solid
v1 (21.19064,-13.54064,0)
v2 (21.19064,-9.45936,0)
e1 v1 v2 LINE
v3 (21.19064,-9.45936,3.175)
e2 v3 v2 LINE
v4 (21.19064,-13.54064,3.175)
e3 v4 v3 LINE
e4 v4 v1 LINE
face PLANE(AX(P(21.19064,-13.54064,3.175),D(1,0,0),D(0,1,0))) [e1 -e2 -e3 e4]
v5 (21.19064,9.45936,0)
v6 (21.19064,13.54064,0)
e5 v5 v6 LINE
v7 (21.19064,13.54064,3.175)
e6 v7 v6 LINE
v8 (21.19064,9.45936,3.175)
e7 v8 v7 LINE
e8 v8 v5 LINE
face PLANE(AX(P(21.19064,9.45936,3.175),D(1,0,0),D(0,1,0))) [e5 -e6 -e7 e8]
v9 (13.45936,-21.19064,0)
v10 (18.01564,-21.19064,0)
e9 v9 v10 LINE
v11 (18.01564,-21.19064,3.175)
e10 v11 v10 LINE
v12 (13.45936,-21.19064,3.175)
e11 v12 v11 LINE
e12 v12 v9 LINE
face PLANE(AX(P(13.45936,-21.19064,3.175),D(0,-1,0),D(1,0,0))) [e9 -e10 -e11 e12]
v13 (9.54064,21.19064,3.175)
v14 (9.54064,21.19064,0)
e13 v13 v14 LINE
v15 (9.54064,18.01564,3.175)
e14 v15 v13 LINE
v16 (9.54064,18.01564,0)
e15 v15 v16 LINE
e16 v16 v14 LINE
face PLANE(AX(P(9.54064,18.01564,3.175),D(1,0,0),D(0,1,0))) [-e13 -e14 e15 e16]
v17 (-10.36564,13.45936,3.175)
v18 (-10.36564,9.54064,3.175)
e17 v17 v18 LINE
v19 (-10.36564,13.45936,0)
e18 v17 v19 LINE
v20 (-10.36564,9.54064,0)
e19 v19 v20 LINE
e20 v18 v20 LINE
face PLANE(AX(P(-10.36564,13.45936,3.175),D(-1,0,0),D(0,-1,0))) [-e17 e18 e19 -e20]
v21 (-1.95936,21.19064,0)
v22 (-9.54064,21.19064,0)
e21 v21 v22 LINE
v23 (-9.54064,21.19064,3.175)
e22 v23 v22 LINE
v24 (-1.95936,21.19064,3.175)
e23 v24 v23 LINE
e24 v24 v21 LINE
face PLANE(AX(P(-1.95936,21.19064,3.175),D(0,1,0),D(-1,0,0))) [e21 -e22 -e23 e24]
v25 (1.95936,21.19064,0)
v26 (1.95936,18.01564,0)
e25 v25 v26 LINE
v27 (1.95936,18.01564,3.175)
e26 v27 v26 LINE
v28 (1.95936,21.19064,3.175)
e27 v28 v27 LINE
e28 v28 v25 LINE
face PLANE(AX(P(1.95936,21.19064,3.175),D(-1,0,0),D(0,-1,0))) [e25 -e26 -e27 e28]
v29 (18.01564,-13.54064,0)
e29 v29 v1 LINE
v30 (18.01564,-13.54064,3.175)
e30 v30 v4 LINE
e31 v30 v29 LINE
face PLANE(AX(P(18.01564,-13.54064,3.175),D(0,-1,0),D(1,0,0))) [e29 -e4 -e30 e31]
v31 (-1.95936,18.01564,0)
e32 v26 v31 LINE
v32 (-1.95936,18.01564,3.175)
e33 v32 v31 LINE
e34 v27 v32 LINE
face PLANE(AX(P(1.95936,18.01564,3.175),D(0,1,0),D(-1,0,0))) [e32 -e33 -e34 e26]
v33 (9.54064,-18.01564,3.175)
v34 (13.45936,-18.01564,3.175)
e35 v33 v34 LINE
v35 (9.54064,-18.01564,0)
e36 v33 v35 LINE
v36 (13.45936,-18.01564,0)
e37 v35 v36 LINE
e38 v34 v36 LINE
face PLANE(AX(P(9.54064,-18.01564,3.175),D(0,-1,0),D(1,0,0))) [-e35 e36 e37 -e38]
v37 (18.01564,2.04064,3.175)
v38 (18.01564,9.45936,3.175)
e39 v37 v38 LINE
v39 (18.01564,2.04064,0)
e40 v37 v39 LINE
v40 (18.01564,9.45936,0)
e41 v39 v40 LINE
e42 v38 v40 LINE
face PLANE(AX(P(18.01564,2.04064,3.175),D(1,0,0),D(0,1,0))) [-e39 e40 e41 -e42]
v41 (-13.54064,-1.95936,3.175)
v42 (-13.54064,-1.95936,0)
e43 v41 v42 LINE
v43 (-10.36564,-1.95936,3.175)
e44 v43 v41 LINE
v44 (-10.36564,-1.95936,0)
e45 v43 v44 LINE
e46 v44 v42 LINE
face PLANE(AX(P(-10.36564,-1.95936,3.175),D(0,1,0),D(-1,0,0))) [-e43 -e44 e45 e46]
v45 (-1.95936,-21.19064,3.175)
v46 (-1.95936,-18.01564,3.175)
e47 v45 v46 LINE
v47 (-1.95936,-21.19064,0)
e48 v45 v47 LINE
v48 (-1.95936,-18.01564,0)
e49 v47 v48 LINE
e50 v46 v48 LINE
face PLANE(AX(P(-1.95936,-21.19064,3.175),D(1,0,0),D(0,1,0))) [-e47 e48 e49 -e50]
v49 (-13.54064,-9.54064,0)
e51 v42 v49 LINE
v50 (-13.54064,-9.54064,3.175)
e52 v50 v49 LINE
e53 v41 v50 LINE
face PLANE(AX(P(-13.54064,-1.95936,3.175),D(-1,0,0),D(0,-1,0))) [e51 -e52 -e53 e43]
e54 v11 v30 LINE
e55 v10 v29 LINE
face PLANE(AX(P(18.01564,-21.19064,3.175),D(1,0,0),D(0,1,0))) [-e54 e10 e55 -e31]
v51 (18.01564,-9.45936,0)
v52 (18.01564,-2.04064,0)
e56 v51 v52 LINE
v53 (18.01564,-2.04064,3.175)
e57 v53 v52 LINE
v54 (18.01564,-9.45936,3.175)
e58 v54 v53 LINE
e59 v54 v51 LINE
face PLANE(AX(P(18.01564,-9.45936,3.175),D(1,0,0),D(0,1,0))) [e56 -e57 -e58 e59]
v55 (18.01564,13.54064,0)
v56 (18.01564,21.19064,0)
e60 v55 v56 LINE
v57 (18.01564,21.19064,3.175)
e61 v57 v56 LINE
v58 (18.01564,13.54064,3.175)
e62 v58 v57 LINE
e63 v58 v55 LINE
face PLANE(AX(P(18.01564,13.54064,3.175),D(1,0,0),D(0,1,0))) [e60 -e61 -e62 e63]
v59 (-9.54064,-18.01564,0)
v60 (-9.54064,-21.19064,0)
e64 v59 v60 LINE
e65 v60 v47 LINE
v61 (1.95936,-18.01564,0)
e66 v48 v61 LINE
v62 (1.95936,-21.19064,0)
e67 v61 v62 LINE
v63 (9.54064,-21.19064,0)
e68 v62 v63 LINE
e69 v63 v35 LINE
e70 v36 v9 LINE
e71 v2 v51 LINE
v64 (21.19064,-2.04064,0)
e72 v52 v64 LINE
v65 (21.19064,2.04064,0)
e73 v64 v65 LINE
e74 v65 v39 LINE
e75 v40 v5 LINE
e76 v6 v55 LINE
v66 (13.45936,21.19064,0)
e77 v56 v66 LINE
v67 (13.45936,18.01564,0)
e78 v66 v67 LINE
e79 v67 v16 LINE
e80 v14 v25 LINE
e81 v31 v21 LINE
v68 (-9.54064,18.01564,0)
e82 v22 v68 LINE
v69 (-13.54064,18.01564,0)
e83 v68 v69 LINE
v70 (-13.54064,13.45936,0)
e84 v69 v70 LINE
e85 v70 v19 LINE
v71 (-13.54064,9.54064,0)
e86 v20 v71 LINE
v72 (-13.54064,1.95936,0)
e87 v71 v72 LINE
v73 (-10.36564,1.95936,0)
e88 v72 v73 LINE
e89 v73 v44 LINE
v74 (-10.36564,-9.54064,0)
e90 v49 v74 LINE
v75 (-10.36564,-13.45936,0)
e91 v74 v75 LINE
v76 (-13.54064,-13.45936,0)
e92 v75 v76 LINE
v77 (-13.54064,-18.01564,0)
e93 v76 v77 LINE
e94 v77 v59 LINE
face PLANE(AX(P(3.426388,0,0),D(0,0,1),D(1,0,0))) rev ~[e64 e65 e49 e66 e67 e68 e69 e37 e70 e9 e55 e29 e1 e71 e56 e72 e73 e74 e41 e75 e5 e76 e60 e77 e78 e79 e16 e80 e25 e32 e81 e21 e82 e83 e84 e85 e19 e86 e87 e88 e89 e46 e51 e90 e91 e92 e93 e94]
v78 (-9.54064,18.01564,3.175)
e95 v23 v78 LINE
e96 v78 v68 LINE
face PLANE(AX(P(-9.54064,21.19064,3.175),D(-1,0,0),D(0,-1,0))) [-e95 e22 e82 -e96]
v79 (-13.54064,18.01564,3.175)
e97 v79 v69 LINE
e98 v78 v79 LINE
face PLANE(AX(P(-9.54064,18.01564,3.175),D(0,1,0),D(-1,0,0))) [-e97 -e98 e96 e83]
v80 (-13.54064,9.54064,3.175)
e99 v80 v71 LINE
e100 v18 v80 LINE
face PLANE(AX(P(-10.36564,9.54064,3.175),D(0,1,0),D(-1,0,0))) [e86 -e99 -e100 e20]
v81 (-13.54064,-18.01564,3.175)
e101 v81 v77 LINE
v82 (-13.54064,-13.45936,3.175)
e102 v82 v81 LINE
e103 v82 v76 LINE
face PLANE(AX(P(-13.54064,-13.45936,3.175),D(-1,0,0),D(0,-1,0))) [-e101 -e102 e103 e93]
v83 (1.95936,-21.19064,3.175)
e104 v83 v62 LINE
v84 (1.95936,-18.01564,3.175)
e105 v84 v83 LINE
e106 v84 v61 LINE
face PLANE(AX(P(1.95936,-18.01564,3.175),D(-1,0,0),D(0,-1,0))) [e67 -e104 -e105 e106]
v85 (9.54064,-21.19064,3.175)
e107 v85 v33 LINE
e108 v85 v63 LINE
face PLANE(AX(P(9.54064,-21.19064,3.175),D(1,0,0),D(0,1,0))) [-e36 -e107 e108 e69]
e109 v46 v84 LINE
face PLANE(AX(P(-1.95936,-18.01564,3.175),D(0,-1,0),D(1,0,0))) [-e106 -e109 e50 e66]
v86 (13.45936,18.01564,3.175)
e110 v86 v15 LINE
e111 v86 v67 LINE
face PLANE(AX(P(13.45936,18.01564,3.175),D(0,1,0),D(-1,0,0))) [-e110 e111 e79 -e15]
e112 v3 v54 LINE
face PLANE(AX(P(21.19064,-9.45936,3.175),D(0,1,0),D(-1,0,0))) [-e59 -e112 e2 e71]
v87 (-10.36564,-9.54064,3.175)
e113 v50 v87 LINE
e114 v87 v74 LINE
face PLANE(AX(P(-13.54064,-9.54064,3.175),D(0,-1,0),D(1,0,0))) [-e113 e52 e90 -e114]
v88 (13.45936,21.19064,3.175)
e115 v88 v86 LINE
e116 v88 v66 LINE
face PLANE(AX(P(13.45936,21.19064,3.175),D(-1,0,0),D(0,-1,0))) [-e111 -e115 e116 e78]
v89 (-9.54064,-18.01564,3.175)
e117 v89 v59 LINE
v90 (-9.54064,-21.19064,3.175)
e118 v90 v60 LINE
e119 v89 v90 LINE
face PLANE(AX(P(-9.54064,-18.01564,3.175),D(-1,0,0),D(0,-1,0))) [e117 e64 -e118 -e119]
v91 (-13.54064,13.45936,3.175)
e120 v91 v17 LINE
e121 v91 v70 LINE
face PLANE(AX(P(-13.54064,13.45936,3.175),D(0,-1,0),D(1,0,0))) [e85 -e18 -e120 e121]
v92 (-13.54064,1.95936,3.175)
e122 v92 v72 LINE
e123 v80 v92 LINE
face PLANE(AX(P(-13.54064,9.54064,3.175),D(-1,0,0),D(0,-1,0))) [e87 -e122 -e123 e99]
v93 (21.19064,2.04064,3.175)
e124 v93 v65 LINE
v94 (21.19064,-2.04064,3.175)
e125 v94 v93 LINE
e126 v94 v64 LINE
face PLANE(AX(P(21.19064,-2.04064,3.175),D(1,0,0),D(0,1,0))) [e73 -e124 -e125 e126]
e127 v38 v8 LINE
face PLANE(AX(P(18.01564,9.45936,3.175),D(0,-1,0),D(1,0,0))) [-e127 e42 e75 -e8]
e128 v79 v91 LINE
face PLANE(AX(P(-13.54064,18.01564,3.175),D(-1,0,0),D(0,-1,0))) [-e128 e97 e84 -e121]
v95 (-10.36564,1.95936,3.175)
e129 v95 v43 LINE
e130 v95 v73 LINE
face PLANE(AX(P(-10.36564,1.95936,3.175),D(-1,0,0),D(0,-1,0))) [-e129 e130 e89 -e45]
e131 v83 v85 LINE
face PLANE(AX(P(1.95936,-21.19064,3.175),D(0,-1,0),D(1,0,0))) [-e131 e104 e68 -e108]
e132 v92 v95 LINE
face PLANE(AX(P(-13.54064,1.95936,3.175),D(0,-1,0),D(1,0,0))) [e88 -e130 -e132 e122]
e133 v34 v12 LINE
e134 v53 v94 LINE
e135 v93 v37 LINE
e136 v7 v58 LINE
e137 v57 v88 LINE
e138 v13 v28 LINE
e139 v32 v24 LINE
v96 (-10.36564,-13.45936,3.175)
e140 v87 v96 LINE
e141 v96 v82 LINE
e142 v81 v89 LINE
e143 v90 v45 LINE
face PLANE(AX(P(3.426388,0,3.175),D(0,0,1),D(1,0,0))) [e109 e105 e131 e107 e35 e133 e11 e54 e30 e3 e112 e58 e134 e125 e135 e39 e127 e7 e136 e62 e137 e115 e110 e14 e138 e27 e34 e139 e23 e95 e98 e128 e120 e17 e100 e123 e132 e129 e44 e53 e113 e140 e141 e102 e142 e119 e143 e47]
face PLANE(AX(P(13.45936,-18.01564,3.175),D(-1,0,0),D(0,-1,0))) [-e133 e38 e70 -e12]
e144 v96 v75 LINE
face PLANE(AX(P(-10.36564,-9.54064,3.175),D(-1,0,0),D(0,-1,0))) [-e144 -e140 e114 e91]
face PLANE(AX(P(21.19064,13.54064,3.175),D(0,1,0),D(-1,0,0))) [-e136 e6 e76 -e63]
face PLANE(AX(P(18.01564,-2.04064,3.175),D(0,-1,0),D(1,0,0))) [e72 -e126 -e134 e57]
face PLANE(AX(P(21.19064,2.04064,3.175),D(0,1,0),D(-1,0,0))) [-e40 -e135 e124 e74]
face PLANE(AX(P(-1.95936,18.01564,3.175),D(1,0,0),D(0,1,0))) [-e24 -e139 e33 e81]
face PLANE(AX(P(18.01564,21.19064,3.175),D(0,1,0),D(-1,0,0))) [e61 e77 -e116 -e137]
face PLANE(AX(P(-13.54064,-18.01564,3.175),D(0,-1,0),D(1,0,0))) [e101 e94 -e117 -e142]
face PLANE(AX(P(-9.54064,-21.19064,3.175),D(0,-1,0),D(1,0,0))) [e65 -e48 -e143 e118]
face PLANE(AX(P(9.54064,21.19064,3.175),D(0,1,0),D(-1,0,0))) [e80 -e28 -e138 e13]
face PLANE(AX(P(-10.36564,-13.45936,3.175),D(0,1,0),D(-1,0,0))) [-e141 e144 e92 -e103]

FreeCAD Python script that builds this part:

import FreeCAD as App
import Part
import Sketcher
Q = App.Units.Quantity

doc = App.newDocument("Part")
params = doc.addObject("Spreadsheet::Sheet", "Params")
for row, (alias, value) in enumerate([
    ("sketch1_width", "4 mm"),
    ("sketch1_width2", "7.5 mm"),
    ("sketch1_width3", "7.65 mm"),
    ("pad1_length", "3.175 mm"),
    ("sketch2_height", "4 mm"),
    ("sketch2_height2", "42.3 mm"),
    ("sketch2_height3", "7.5 mm"),
    ("pocket1_length", "10 mm"),
    ("sketch3_width", "4 mm"),
    ("sketch3_height", "7.65 mm"),
    ("pad2_length", "3.175 mm"),
], start=1):
    params.set(f"A{row}", alias)
    params.set(f"B{row}", "=" + value)
    params.setAlias(f"B{row}", alias)

body = doc.addObject("PartDesign::Body", "Body")

sketch1 = body.newObject("Sketcher::SketchObject", "Sketch")
sketch1.AttachmentSupport = (doc.getObject("XY_Plane"), [""])
sketch1.MapMode = "FlatFace"
sketch1.addGeometry([
    Part.LineSegment(App.Vector(-2, 18, 0), App.Vector(-2, 21.1, 0)),
    Part.LineSegment(App.Vector(-2, 21.1, 0), App.Vector(-9.5, 21.1, 0)),
    Part.LineSegment(App.Vector(-9.5, 21.1, 0), App.Vector(-9.5, 18, 0)),
    Part.LineSegment(App.Vector(-9.5, 18, 0), App.Vector(-13.5, 18, 0)),
    Part.LineSegment(App.Vector(-13.5, 18, 0), App.Vector(-13.5, 21.1, 0)),
    Part.LineSegment(App.Vector(-13.5, 21.1, 0), App.Vector(-21.1, 21.1, 0)),
    Part.LineSegment(App.Vector(-21.1, 21.1, 0), App.Vector(-21.1, 13.5, 0)),
    Part.LineSegment(App.Vector(-21.1, 13.5, 0), App.Vector(-18, 13.5, 0)),
    Part.LineSegment(App.Vector(-18, 13.5, 0), App.Vector(-18, 9.5, 0)),
    Part.LineSegment(App.Vector(-18, 9.5, 0), App.Vector(-21.1, 9.5, 0)),
    Part.LineSegment(App.Vector(-21.1, 9.5, 0), App.Vector(-21.1, 2, 0)),
    Part.LineSegment(App.Vector(-21.1, 2, 0), App.Vector(-18, 2, 0)),
    Part.LineSegment(App.Vector(-18, 2, 0), App.Vector(-18, -2, 0)),
    Part.LineSegment(App.Vector(-18, -2, 0), App.Vector(-21.1, -2, 0)),
    Part.LineSegment(App.Vector(-21.1, -2, 0), App.Vector(-21.1, -9.5, 0)),
    Part.LineSegment(App.Vector(-21.1, -9.5, 0), App.Vector(-18, -9.5, 0)),
    Part.LineSegment(App.Vector(-18, -9.5, 0), App.Vector(-18, -13.5, 0)),
    Part.LineSegment(App.Vector(-18, -13.5, 0), App.Vector(-21.1, -13.5, 0)),
    Part.LineSegment(App.Vector(-21.1, -13.5, 0), App.Vector(-21.1, -21.1, 0)),
    Part.LineSegment(App.Vector(-21.1, -21.1, 0), App.Vector(-13.5, -21.1, 0)),
    Part.LineSegment(App.Vector(-13.5, -21.1, 0), App.Vector(-13.5, -18, 0)),
    Part.LineSegment(App.Vector(-13.5, -18, 0), App.Vector(-9.5, -18, 0)),
    Part.LineSegment(App.Vector(-9.5, -18, 0), App.Vector(-9.5, -21.1, 0)),
    Part.LineSegment(App.Vector(-9.5, -21.1, 0), App.Vector(-2, -21.1, 0)),
    Part.LineSegment(App.Vector(-2, -21.1, 0), App.Vector(-2, -18, 0)),
    Part.LineSegment(App.Vector(-2, -18, 0), App.Vector(2, -18, 0)),
    Part.LineSegment(App.Vector(2, -18, 0), App.Vector(2, -21.1, 0)),
    Part.LineSegment(App.Vector(2, -21.1, 0), App.Vector(9.5, -21.1, 0)),
    Part.LineSegment(App.Vector(9.5, -21.1, 0), App.Vector(9.5, -18, 0)),
    Part.LineSegment(App.Vector(9.5, -18, 0), App.Vector(13.5, -18, 0)),
    Part.LineSegment(App.Vector(13.5, -18, 0), App.Vector(13.5, -21.1, 0)),
    Part.LineSegment(App.Vector(13.5, -21.1, 0), App.Vector(18, -21.1, 0)),
    Part.LineSegment(App.Vector(18, -21.1, 0), App.Vector(18, -13.5, 0)),
    Part.LineSegment(App.Vector(18, -13.5, 0), App.Vector(21.1, -13.5, 0)),
    Part.LineSegment(App.Vector(21.1, -13.5, 0), App.Vector(21.1, -9.5, 0)),
    Part.LineSegment(App.Vector(21.1, -9.5, 0), App.Vector(18, -9.5, 0)),
    Part.LineSegment(App.Vector(18, -9.5, 0), App.Vector(18, -2, 0)),
    Part.LineSegment(App.Vector(18, -2, 0), App.Vector(21.1, -2, 0)),
    Part.LineSegment(App.Vector(21.1, -2, 0), App.Vector(21.1, 2, 0)),
    Part.LineSegment(App.Vector(21.1, 2, 0), App.Vector(18, 2, 0)),
    Part.LineSegment(App.Vector(18, 2, 0), App.Vector(18, 9.5, 0)),
    Part.LineSegment(App.Vector(18, 9.5, 0), App.Vector(21.1, 9.5, 0)),
    Part.LineSegment(App.Vector(21.1, 9.5, 0), App.Vector(21.1, 13.5, 0)),
    Part.LineSegment(App.Vector(21.1, 13.5, 0), App.Vector(18, 13.5, 0)),
    Part.LineSegment(App.Vector(18, 13.5, 0), App.Vector(18, 21.1, 0)),
    Part.LineSegment(App.Vector(18, 21.1, 0), App.Vector(13.5, 21.1, 0)),
    Part.LineSegment(App.Vector(13.5, 21.1, 0), App.Vector(13.5, 18, 0)),
    Part.LineSegment(App.Vector(13.5, 18, 0), App.Vector(9.5, 18, 0)),
    Part.LineSegment(App.Vector(9.5, 18, 0), App.Vector(9.5, 21.1, 0)),
    Part.LineSegment(App.Vector(9.5, 21.1, 0), App.Vector(2, 21.1, 0)),
    Part.LineSegment(App.Vector(2, 21.1, 0), App.Vector(2, 18, 0)),
    Part.LineSegment(App.Vector(2, 18, 0), App.Vector(-2, 18, 0)),
], False)
sketch1.addConstraint([
    Sketcher.Constraint("Coincident", 0, 2, 1, 1),
    Sketcher.Constraint("Coincident", 1, 2, 2, 1),
    Sketcher.Constraint("Coincident", 2, 2, 3, 1),
    Sketcher.Constraint("Coincident", 3, 2, 4, 1),
    Sketcher.Constraint("Coincident", 4, 2, 5, 1),
    Sketcher.Constraint("Coincident", 5, 2, 6, 1),
    Sketcher.Constraint("Coincident", 6, 2, 7, 1),
    Sketcher.Constraint("Coincident", 7, 2, 8, 1),
    Sketcher.Constraint("Coincident", 8, 2, 9, 1),
    Sketcher.Constraint("Coincident", 9, 2, 10, 1),
    Sketcher.Constraint("Coincident", 10, 2, 11, 1),
    Sketcher.Constraint("Coincident", 11, 2, 12, 1),
    Sketcher.Constraint("Coincident", 12, 2, 13, 1),
    Sketcher.Constraint("Coincident", 13, 2, 14, 1),
    Sketcher.Constraint("Coincident", 14, 2, 15, 1),
    Sketcher.Constraint("Coincident", 15, 2, 16, 1),
    Sketcher.Constraint("Coincident", 16, 2, 17, 1),
    Sketcher.Constraint("Coincident", 17, 2, 18, 1),
    Sketcher.Constraint("Coincident", 18, 2, 19, 1),
    Sketcher.Constraint("Coincident", 19, 2, 20, 1),
    Sketcher.Constraint("Coincident", 20, 2, 21, 1),
    Sketcher.Constraint("Coincident", 21, 2, 22, 1),
    Sketcher.Constraint("Coincident", 22, 2, 23, 1),
    Sketcher.Constraint("Coincident", 23, 2, 24, 1),
    Sketcher.Constraint("Coincident", 24, 2, 25, 1),
    Sketcher.Constraint("Coincident", 25, 2, 26, 1),
    Sketcher.Constraint("Coincident", 26, 2, 27, 1),
    Sketcher.Constraint("Coincident", 27, 2, 28, 1),
    Sketcher.Constraint("Coincident", 28, 2, 29, 1),
    Sketcher.Constraint("Coincident", 29, 2, 30, 1),
    Sketcher.Constraint("Coincident", 30, 2, 31, 1),
    Sketcher.Constraint("Coincident", 31, 2, 32, 1),
    Sketcher.Constraint("Coincident", 32, 2, 33, 1),
    Sketcher.Constraint("Coincident", 33, 2, 34, 1),
    Sketcher.Constraint("Coincident", 34, 2, 35, 1),
    Sketcher.Constraint("Coincident", 35, 2, 36, 1),
    Sketcher.Constraint("Coincident", 36, 2, 37, 1),
    Sketcher.Constraint("Coincident", 37, 2, 38, 1),
    Sketcher.Constraint("Coincident", 38, 2, 39, 1),
    Sketcher.Constraint("Coincident", 39, 2, 40, 1),
    Sketcher.Constraint("Coincident", 40, 2, 41, 1),
    Sketcher.Constraint("Coincident", 41, 2, 42, 1),
    Sketcher.Constraint("Coincident", 42, 2, 43, 1),
    Sketcher.Constraint("Coincident", 43, 2, 44, 1),
    Sketcher.Constraint("Coincident", 44, 2, 45, 1),
    Sketcher.Constraint("Coincident", 45, 2, 46, 1),
    Sketcher.Constraint("Coincident", 46, 2, 47, 1),
    Sketcher.Constraint("Coincident", 47, 2, 48, 1),
    Sketcher.Constraint("Coincident", 48, 2, 49, 1),
    Sketcher.Constraint("Coincident", 49, 2, 50, 1),
    Sketcher.Constraint("Coincident", 50, 2, 51, 1),
    Sketcher.Constraint("Coincident", 51, 2, 0, 1),
    Sketcher.Constraint("Vertical", 0),
    Sketcher.Constraint("Horizontal", 1),
    Sketcher.Constraint("Vertical", 2),
    Sketcher.Constraint("Horizontal", 3),
    Sketcher.Constraint("Vertical", 4),
    Sketcher.Constraint("Horizontal", 5),
    Sketcher.Constraint("Vertical", 6),
    Sketcher.Constraint("Horizontal", 7),
    Sketcher.Constraint("Vertical", 8),
    Sketcher.Constraint("Horizontal", 9),
    Sketcher.Constraint("Vertical", 10),
    Sketcher.Constraint("Horizontal", 11),
    Sketcher.Constraint("Vertical", 12),
    Sketcher.Constraint("Horizontal", 13),
    Sketcher.Constraint("Vertical", 14),
    Sketcher.Constraint("Horizontal", 15),
    Sketcher.Constraint("Vertical", 16),
    Sketcher.Constraint("Horizontal", 17),
    Sketcher.Constraint("Vertical", 18),
    Sketcher.Constraint("Horizontal", 19),
    Sketcher.Constraint("Vertical", 20),
    Sketcher.Constraint("Horizontal", 21),
    Sketcher.Constraint("Vertical", 22),
    Sketcher.Constraint("Horizontal", 23),
    Sketcher.Constraint("Vertical", 24),
    Sketcher.Constraint("Horizontal", 25),
    Sketcher.Constraint("Vertical", 26),
    Sketcher.Constraint("Horizontal", 27),
    Sketcher.Constraint("Vertical", 28),
    Sketcher.Constraint("Horizontal", 29),
    Sketcher.Constraint("Vertical", 30),
    Sketcher.Constraint("Horizontal", 31),
    Sketcher.Constraint("Vertical", 32),
    Sketcher.Constraint("Horizontal", 33),
    Sketcher.Constraint("Vertical", 34),
    Sketcher.Constraint("Horizontal", 35),
    Sketcher.Constraint("Vertical", 36),
    Sketcher.Constraint("Horizontal", 37),
    Sketcher.Constraint("Vertical", 38),
    Sketcher.Constraint("Horizontal", 39),
    Sketcher.Constraint("Vertical", 40),
    Sketcher.Constraint("Horizontal", 41),
    Sketcher.Constraint("Vertical", 42),
    Sketcher.Constraint("Horizontal", 43),
    Sketcher.Constraint("Vertical", 44),
    Sketcher.Constraint("Horizontal", 45),
    Sketcher.Constraint("Vertical", 46),
    Sketcher.Constraint("Horizontal", 47),
    Sketcher.Constraint("Vertical", 48),
    Sketcher.Constraint("Horizontal", 49),
    Sketcher.Constraint("Vertical", 50),
    Sketcher.Constraint("Horizontal", 51),
    Sketcher.Constraint("Symmetric", 0, 2, 26, 2, -1, 1),
    Sketcher.Constraint("Symmetric", 2, 2, 28, 2, -1, 1),
    Sketcher.Constraint("Symmetric", 4, 2, 30, 2, -1, 1),
    Sketcher.Constraint("Symmetric", 7, 2, 32, 2, -1, 1),
    Sketcher.Constraint("Symmetric", 9, 2, 34, 2, -1, 1),
    Sketcher.Constraint("Symmetric", 11, 2, 36, 2, -1, 1),
    Sketcher.Constraint("Symmetric", 13, 2, 38, 2, -1, 1),
    Sketcher.Constraint("Symmetric", 15, 2, 40, 2, -1, 1),
    Sketcher.Constraint("Symmetric", 17, 2, 42, 2, -1, 1),
    Sketcher.Constraint("Symmetric", 19, 2, 45, 2, -1, 1),
    Sketcher.Constraint("Symmetric", 21, 2, 47, 2, -1, 1),
    Sketcher.Constraint("Symmetric", 23, 2, 49, 2, -1, 1),
    Sketcher.Constraint("Symmetric", 23, 2, 26, 2, -2),
    Sketcher.Constraint("Symmetric", 21, 2, 28, 2, -2),
    Sketcher.Constraint("Symmetric", 19, 2, 30, 2, -2),
    Sketcher.Constraint("Symmetric", 16, 2, 32, 2, -2),
    Sketcher.Constraint("Symmetric", 14, 2, 34, 2, -2),
    Sketcher.Constraint("Symmetric", 11, 2, 39, 2, -2),
    Sketcher.Constraint("Horizontal", 1, 2, 4, 2),
    Sketcher.Constraint("Horizontal", 21, 2, 24, 2),
    Sketcher.Constraint("Horizontal", 47, 2, 50, 2),
    Sketcher.Constraint("Vertical", 6, 2, 9, 2),
    Sketcher.Constraint("Vertical", 14, 2, 17, 2),
    Sketcher.Constraint("Vertical", 40, 2, 43, 2),
    Sketcher.Constraint("Equal", 21, 25),
    Sketcher.Constraint("Equal", 43, 0),
    Sketcher.Constraint("Equal", 19, 6),
    Sketcher.Constraint("Equal", 51, 8),
    Sketcher.Constraint("Equal", 49, 10),
    Sketcher.Constraint("Equal", 8, 12),
    Sketcher.Constraint("DistanceX", 3, 2, 3, 1, Q("4 mm")),
    Sketcher.Constraint("DistanceX", 1, 2, 1, 1, Q("7.5 mm")),
    Sketcher.Constraint("DistanceX", 5, 2, 5, 1, Q("7.65 mm")),
    Sketcher.Constraint("DistanceX", 7, 1, 7, 2, Q("3.175 mm")),
])
sketch1.setExpression("Constraints[134]", "Params.sketch1_width")
sketch1.setExpression("Constraints[135]", "Params.sketch1_width2")
sketch1.setExpression("Constraints[136]", "Params.sketch1_width3")
pad1 = body.newObject("PartDesign::Pad", "Pad")
pad1.Profile = sketch1
pad1.setExpression("Length", "Params.pad1_length")

sketch2 = body.newObject("Sketcher::SketchObject", "Sketch001")
sketch2.AttachmentSupport = (doc.getObject("XY_Plane"), [""])
sketch2.MapMode = "FlatFace"
sketch2.AttachmentOffset = App.Placement(App.Vector(0, 0, 3.175), App.Rotation())
sketch2.addGeometry([
    Part.LineSegment(App.Vector(-13.5, 21.1, 0), App.Vector(-21.1, 21.1, 0)),
    Part.LineSegment(App.Vector(-21.1, 21.1, 0), App.Vector(-21.1, -21.1, 0)),
    Part.LineSegment(App.Vector(-21.1, -21.1, 0), App.Vector(-13.5, -21.1, 0)),
    Part.LineSegment(App.Vector(-13.5, -21.1, 0), App.Vector(-13.5, -13.5, 0)),
    Part.LineSegment(App.Vector(-13.5, -13.5, 0), App.Vector(-10.3, -13.5, 0)),
    Part.LineSegment(App.Vector(-10.3, -13.5, 0), App.Vector(-10.3, -9.5, 0)),
    Part.LineSegment(App.Vector(-10.3, -9.5, 0), App.Vector(-13.5, -9.5, 0)),
    Part.LineSegment(App.Vector(-13.5, -9.5, 0), App.Vector(-13.5, -2, 0)),
    Part.LineSegment(App.Vector(-13.5, -2, 0), App.Vector(-10.3, -2, 0)),
    Part.LineSegment(App.Vector(-10.3, -2, 0), App.Vector(-10.3, 2, 0)),
    Part.LineSegment(App.Vector(-10.3, 2, 0), App.Vector(-13.5, 2, 0)),
    Part.LineSegment(App.Vector(-13.5, 2, 0), App.Vector(-13.5, 9.5, 0)),
    Part.LineSegment(App.Vector(-13.5, 9.5, 0), App.Vector(-10.3, 9.5, 0)),
    Part.LineSegment(App.Vector(-10.3, 9.5, 0), App.Vector(-10.3, 13.5, 0)),
    Part.LineSegment(App.Vector(-10.3, 13.5, 0), App.Vector(-13.5, 13.5, 0)),
    Part.LineSegment(App.Vector(-13.5, 13.5, 0), App.Vector(-13.5, 21.1, 0)),
], False)
sketch2.addConstraint([
    Sketcher.Constraint("Coincident", 0, 2, 1, 1),
    Sketcher.Constraint("Coincident", 1, 2, 2, 1),
    Sketcher.Constraint("Coincident", 2, 2, 3, 1),
    Sketcher.Constraint("Coincident", 3, 2, 4, 1),
    Sketcher.Constraint("Coincident", 4, 2, 5, 1),
    Sketcher.Constraint("Coincident", 5, 2, 6, 1),
    Sketcher.Constraint("Coincident", 6, 2, 7, 1),
    Sketcher.Constraint("Coincident", 7, 2, 8, 1),
    Sketcher.Constraint("Coincident", 8, 2, 9, 1),
    Sketcher.Constraint("Coincident", 9, 2, 10, 1),
    Sketcher.Constraint("Coincident", 10, 2, 11, 1),
    Sketcher.Constraint("Coincident", 11, 2, 12, 1),
    Sketcher.Constraint("Coincident", 12, 2, 13, 1),
    Sketcher.Constraint("Coincident", 13, 2, 14, 1),
    Sketcher.Constraint("Coincident", 14, 2, 15, 1),
    Sketcher.Constraint("Coincident", 15, 2, 0, 1),
    Sketcher.Constraint("Horizontal", 0),
    Sketcher.Constraint("Vertical", 1),
    Sketcher.Constraint("Horizontal", 2),
    Sketcher.Constraint("Vertical", 3),
    Sketcher.Constraint("Horizontal", 4),
    Sketcher.Constraint("Vertical", 5),
    Sketcher.Constraint("Horizontal", 6),
    Sketcher.Constraint("Vertical", 7),
    Sketcher.Constraint("Horizontal", 8),
    Sketcher.Constraint("Vertical", 9),
    Sketcher.Constraint("Horizontal", 10),
    Sketcher.Constraint("Vertical", 11),
    Sketcher.Constraint("Horizontal", 12),
    Sketcher.Constraint("Vertical", 13),
    Sketcher.Constraint("Horizontal", 14),
    Sketcher.Constraint("Vertical", 15),
    Sketcher.Constraint("Symmetric", 7, 2, 10, 2, -1),
    Sketcher.Constraint("Symmetric", 5, 2, 12, 2, -1),
    Sketcher.Constraint("Symmetric", 3, 2, 14, 2, -1),
    Sketcher.Constraint("Vertical", 3, 2, 6, 2),
    Sketcher.Constraint("Vertical", 5, 2, 8, 2),
    Sketcher.Constraint("Equal", 2, 3),
    Sketcher.Constraint("Equal", 5, 9),
    Sketcher.Constraint("Equal", 3, 15),
    Sketcher.Constraint("DistanceY", 5, 1, 5, 2, Q("4 mm")),
    Sketcher.Constraint("DistanceY", 1, 2, 1, 1, Q("42.3 mm")),
    Sketcher.Constraint("DistanceY", 7, 1, 7, 2, Q("7.5 mm")),
    Sketcher.Constraint("DistanceX", 2, 2, -1, 1, Q("13.5 mm")),
    Sketcher.Constraint("DistanceX", 4, 1, 4, 2, Q("3.175 mm")),
])
sketch2.setExpression("Constraints[40]", "Params.sketch2_height")
sketch2.setExpression("Constraints[41]", "Params.sketch2_height2")
sketch2.setExpression("Constraints[42]", "Params.sketch2_height3")
pocket1 = body.newObject("PartDesign::Pocket", "Pocket")
pocket1.Profile = sketch2
pocket1.setExpression("Length", "Params.pocket1_length")

sketch3 = body.newObject("Sketcher::SketchObject", "Sketch002")
sketch3.AttachmentSupport = (doc.getObject("XY_Plane"), [""])
sketch3.MapMode = "FlatFace"
sketch3.AttachmentOffset = App.Placement(App.Vector(0, 0, 3.175), App.Rotation())
sketch3.addGeometry([
    Part.LineSegment(App.Vector(-13.5, 18, 0), App.Vector(-13.5, 13.5, 0)),
    Part.LineSegment(App.Vector(-13.5, 13.5, 0), App.Vector(-10.4, 13.5, 0)),
    Part.LineSegment(App.Vector(-10.4, 13.5, 0), App.Vector(-10.4, 9.5, 0)),
    Part.LineSegment(App.Vector(-10.4, 9.5, 0), App.Vector(-13.5, 9.5, 0)),
    Part.LineSegment(App.Vector(-13.5, 9.5, 0), App.Vector(-13.5, 2, 0)),
    Part.LineSegment(App.Vector(-13.5, 2, 0), App.Vector(-10.4, 2, 0)),
    Part.LineSegment(App.Vector(-10.4, 2, 0), App.Vector(-10.4, -2, 0)),
    Part.LineSegment(App.Vector(-10.4, -2, 0), App.Vector(-13.5, -2, 0)),
    Part.LineSegment(App.Vector(-13.5, -2, 0), App.Vector(-13.5, -9.5, 0)),
    Part.LineSegment(App.Vector(-13.5, -9.5, 0), App.Vector(-10.4, -9.5, 0)),
    Part.LineSegment(App.Vector(-10.4, -9.5, 0), App.Vector(-10.4, -13.5, 0)),
    Part.LineSegment(App.Vector(-10.4, -13.5, 0), App.Vector(-13.5, -13.5, 0)),
    Part.LineSegment(App.Vector(-13.5, -13.5, 0), App.Vector(-13.5, -18, 0)),
    Part.LineSegment(App.Vector(-13.5, -18, 0), App.Vector(-9.5, -18, 0)),
    Part.LineSegment(App.Vector(-9.5, -18, 0), App.Vector(-9.5, -21.2, 0)),
    Part.LineSegment(App.Vector(-9.5, -21.2, 0), App.Vector(-2, -21.2, 0)),
    Part.LineSegment(App.Vector(-2, -21.2, 0), App.Vector(-2, -18, 0)),
    Part.LineSegment(App.Vector(-2, -18, 0), App.Vector(2, -18, 0)),
    Part.LineSegment(App.Vector(2, -18, 0), App.Vector(2, -21.2, 0)),
    Part.LineSegment(App.Vector(2, -21.2, 0), App.Vector(9.5, -21.2, 0)),
    Part.LineSegment(App.Vector(9.5, -21.2, 0), App.Vector(9.5, -18, 0)),
    Part.LineSegment(App.Vector(9.5, -18, 0), App.Vector(13.5, -18, 0)),
    Part.LineSegment(App.Vector(13.5, -18, 0), App.Vector(13.5, -21.2, 0)),
    Part.LineSegment(App.Vector(13.5, -21.2, 0), App.Vector(18, -21.2, 0)),
    Part.LineSegment(App.Vector(18, -21.2, 0), App.Vector(18, -13.5, 0)),
    Part.LineSegment(App.Vector(18, -13.5, 0), App.Vector(21.2, -13.5, 0)),
    Part.LineSegment(App.Vector(21.2, -13.5, 0), App.Vector(21.2, -9.5, 0)),
    Part.LineSegment(App.Vector(21.2, -9.5, 0), App.Vector(18, -9.5, 0)),
    Part.LineSegment(App.Vector(18, -9.5, 0), App.Vector(18, -2, 0)),
    Part.LineSegment(App.Vector(18, -2, 0), App.Vector(21.2, -2, 0)),
    Part.LineSegment(App.Vector(21.2, -2, 0), App.Vector(21.2, 2, 0)),
    Part.LineSegment(App.Vector(21.2, 2, 0), App.Vector(18, 2, 0)),
    Part.LineSegment(App.Vector(18, 2, 0), App.Vector(18, 9.5, 0)),
    Part.LineSegment(App.Vector(18, 9.5, 0), App.Vector(21.2, 9.5, 0)),
    Part.LineSegment(App.Vector(21.2, 9.5, 0), App.Vector(21.2, 13.5, 0)),
    Part.LineSegment(App.Vector(21.2, 13.5, 0), App.Vector(18, 13.5, 0)),
    Part.LineSegment(App.Vector(18, 13.5, 0), App.Vector(18, 21.2, 0)),
    Part.LineSegment(App.Vector(18, 21.2, 0), App.Vector(13.5, 21.2, 0)),
    Part.LineSegment(App.Vector(13.5, 21.2, 0), App.Vector(13.5, 18, 0)),
    Part.LineSegment(App.Vector(13.5, 18, 0), App.Vector(9.5, 18, 0)),
    Part.LineSegment(App.Vector(9.5, 18, 0), App.Vector(9.5, 21.2, 0)),
    Part.LineSegment(App.Vector(9.5, 21.2, 0), App.Vector(2, 21.2, 0)),
    Part.LineSegment(App.Vector(2, 21.2, 0), App.Vector(2, 18, 0)),
    Part.LineSegment(App.Vector(2, 18, 0), App.Vector(-2, 18, 0)),
    Part.LineSegment(App.Vector(-2, 18, 0), App.Vector(-2, 21.2, 0)),
    Part.LineSegment(App.Vector(-2, 21.2, 0), App.Vector(-9.5, 21.2, 0)),
    Part.LineSegment(App.Vector(-9.5, 21.2, 0), App.Vector(-9.5, 18, 0)),
    Part.LineSegment(App.Vector(-9.5, 18, 0), App.Vector(-13.5, 18, 0)),
], False)
sketch3.addConstraint([
    Sketcher.Constraint("Coincident", 0, 2, 1, 1),
    Sketcher.Constraint("Coincident", 1, 2, 2, 1),
    Sketcher.Constraint("Coincident", 2, 2, 3, 1),
    Sketcher.Constraint("Coincident", 3, 2, 4, 1),
    Sketcher.Constraint("Coincident", 4, 2, 5, 1),
    Sketcher.Constraint("Coincident", 5, 2, 6, 1),
    Sketcher.Constraint("Coincident", 6, 2, 7, 1),
    Sketcher.Constraint("Coincident", 7, 2, 8, 1),
    Sketcher.Constraint("Coincident", 8, 2, 9, 1),
    Sketcher.Constraint("Coincident", 9, 2, 10, 1),
    Sketcher.Constraint("Coincident", 10, 2, 11, 1),
    Sketcher.Constraint("Coincident", 11, 2, 12, 1),
    Sketcher.Constraint("Coincident", 12, 2, 13, 1),
    Sketcher.Constraint("Coincident", 13, 2, 14, 1),
    Sketcher.Constraint("Coincident", 14, 2, 15, 1),
    Sketcher.Constraint("Coincident", 15, 2, 16, 1),
    Sketcher.Constraint("Coincident", 16, 2, 17, 1),
    Sketcher.Constraint("Coincident", 17, 2, 18, 1),
    Sketcher.Constraint("Coincident", 18, 2, 19, 1),
    Sketcher.Constraint("Coincident", 19, 2, 20, 1),
    Sketcher.Constraint("Coincident", 20, 2, 21, 1),
    Sketcher.Constraint("Coincident", 21, 2, 22, 1),
    Sketcher.Constraint("Coincident", 22, 2, 23, 1),
    Sketcher.Constraint("Coincident", 23, 2, 24, 1),
    Sketcher.Constraint("Coincident", 24, 2, 25, 1),
    Sketcher.Constraint("Coincident", 25, 2, 26, 1),
    Sketcher.Constraint("Coincident", 26, 2, 27, 1),
    Sketcher.Constraint("Coincident", 27, 2, 28, 1),
    Sketcher.Constraint("Coincident", 28, 2, 29, 1),
    Sketcher.Constraint("Coincident", 29, 2, 30, 1),
    Sketcher.Constraint("Coincident", 30, 2, 31, 1),
    Sketcher.Constraint("Coincident", 31, 2, 32, 1),
    Sketcher.Constraint("Coincident", 32, 2, 33, 1),
    Sketcher.Constraint("Coincident", 33, 2, 34, 1),
    Sketcher.Constraint("Coincident", 34, 2, 35, 1),
    Sketcher.Constraint("Coincident", 35, 2, 36, 1),
    Sketcher.Constraint("Coincident", 36, 2, 37, 1),
    Sketcher.Constraint("Coincident", 37, 2, 38, 1),
    Sketcher.Constraint("Coincident", 38, 2, 39, 1),
    Sketcher.Constraint("Coincident", 39, 2, 40, 1),
    Sketcher.Constraint("Coincident", 40, 2, 41, 1),
    Sketcher.Constraint("Coincident", 41, 2, 42, 1),
    Sketcher.Constraint("Coincident", 42, 2, 43, 1),
    Sketcher.Constraint("Coincident", 43, 2, 44, 1),
    Sketcher.Constraint("Coincident", 44, 2, 45, 1),
    Sketcher.Constraint("Coincident", 45, 2, 46, 1),
    Sketcher.Constraint("Coincident", 46, 2, 47, 1),
    Sketcher.Constraint("Coincident", 47, 2, 0, 1),
    Sketcher.Constraint("Vertical", 0),
    Sketcher.Constraint("Horizontal", 1),
    Sketcher.Constraint("Vertical", 2),
    Sketcher.Constraint("Horizontal", 3),
    Sketcher.Constraint("Vertical", 4),
    Sketcher.Constraint("Horizontal", 5),
    Sketcher.Constraint("Vertical", 6),
    Sketcher.Constraint("Horizontal", 7),
    Sketcher.Constraint("Vertical", 8),
    Sketcher.Constraint("Horizontal", 9),
    Sketcher.Constraint("Vertical", 10),
    Sketcher.Constraint("Horizontal", 11),
    Sketcher.Constraint("Vertical", 12),
    Sketcher.Constraint("Horizontal", 13),
    Sketcher.Constraint("Vertical", 14),
    Sketcher.Constraint("Horizontal", 15),
    Sketcher.Constraint("Vertical", 16),
    Sketcher.Constraint("Horizontal", 17),
    Sketcher.Constraint("Vertical", 18),
    Sketcher.Constraint("Horizontal", 19),
    Sketcher.Constraint("Vertical", 20),
    Sketcher.Constraint("Horizontal", 21),
    Sketcher.Constraint("Vertical", 22),
    Sketcher.Constraint("Horizontal", 23),
    Sketcher.Constraint("Vertical", 24),
    Sketcher.Constraint("Horizontal", 25),
    Sketcher.Constraint("Vertical", 26),
    Sketcher.Constraint("Horizontal", 27),
    Sketcher.Constraint("Vertical", 28),
    Sketcher.Constraint("Horizontal", 29),
    Sketcher.Constraint("Vertical", 30),
    Sketcher.Constraint("Horizontal", 31),
    Sketcher.Constraint("Vertical", 32),
    Sketcher.Constraint("Horizontal", 33),
    Sketcher.Constraint("Vertical", 34),
    Sketcher.Constraint("Horizontal", 35),
    Sketcher.Constraint("Vertical", 36),
    Sketcher.Constraint("Horizontal", 37),
    Sketcher.Constraint("Vertical", 38),
    Sketcher.Constraint("Horizontal", 39),
    Sketcher.Constraint("Vertical", 40),
    Sketcher.Constraint("Horizontal", 41),
    Sketcher.Constraint("Vertical", 42),
    Sketcher.Constraint("Horizontal", 43),
    Sketcher.Constraint("Vertical", 44),
    Sketcher.Constraint("Horizontal", 45),
    Sketcher.Constraint("Vertical", 46),
    Sketcher.Constraint("Horizontal", 47),
    Sketcher.Constraint("Symmetric", 13, 2, 39, 2, -1, 1),
    Sketcher.Constraint("Symmetric", 15, 2, 41, 2, -1, 1),
    Sketcher.Constraint("Symmetric", 17, 2, 43, 2, -1, 1),
    Sketcher.Constraint("Symmetric", 19, 2, 45, 2, -1, 1),
    Sketcher.Constraint("Symmetric", 15, 2, 18, 2, -2),
    Sketcher.Constraint("Symmetric", 13, 2, 20, 2, -2),
    Sketcher.Constraint("Symmetric", 4, 2, 7, 2, -1),
    Sketcher.Constraint("Symmetric", 2, 2, 9, 2, -1),
    Sketcher.Constraint("Symmetric", 0, 2, 11, 2, -1),
    Sketcher.Constraint("Symmetric", 28, 2, 31, 2, -1),
    Sketcher.Constraint("Symmetric", 26, 2, 33, 2, -1),
    Sketcher.Constraint("Symmetric", 24, 2, 35, 2, -1),
    Sketcher.Constraint("Symmetric", 22, 2, 37, 2, -1),
    Sketcher.Constraint("Horizontal", 13, 2, 16, 2),
    Sketcher.Constraint("Horizontal", 19, 2, 22, 2),
    Sketcher.Constraint("Horizontal", 43, 2, 46, 2),
    Sketcher.Constraint("Vertical", 0, 2, 3, 2),
    Sketcher.Constraint("Vertical", 2, 2, 5, 2),
    Sketcher.Constraint("Vertical", 24, 2, 27, 2),
    Sketcher.Constraint("Vertical", 26, 2, 29, 2),
    Sketcher.Constraint("Equal", 17, 21),
    Sketcher.Constraint("Equal", 11, 25),
    Sketcher.Constraint("Equal", 37, 0),
    Sketcher.Constraint("Equal", 43, 2),
    Sketcher.Constraint("Equal", 45, 4),
    Sketcher.Constraint("Equal", 2, 6),
    Sketcher.Constraint("Equal", 35, 14),
    Sketcher.Constraint("Equal", 26, 30),
    Sketcher.Constraint("DistanceX", 13, 1, 13, 2, Q("4 mm")),
    Sketcher.Constraint("DistanceY", 24, 1, 24, 2, Q("7.65 mm")),
    Sketcher.Constraint("DistanceY", 4, 2, 0, 2, Q("11.5 mm")),
    Sketcher.Constraint("DistanceY", 24, 2, 28, 2, Q("11.5 mm")),
    Sketcher.Constraint("DistanceX", 1, 1, 1, 2, Q("3.175 mm")),
    Sketcher.Constraint("DistanceY", 14, 2, 9, 2, Q("11.65 mm")),
    Sketcher.Constraint("DistanceX", 15, 1, 15, 2, Q("7.58128 mm")),
])
sketch3.setExpression("Constraints[124]", "Params.sketch3_width")
sketch3.setExpression("Constraints[125]", "Params.sketch3_height")
pad2 = body.newObject("PartDesign::Pad", "Pad001")
pad2.Profile = sketch3
pad2.setExpression("Length", "Params.pad2_length")
pad2.Reversed = True

doc.recompute()
